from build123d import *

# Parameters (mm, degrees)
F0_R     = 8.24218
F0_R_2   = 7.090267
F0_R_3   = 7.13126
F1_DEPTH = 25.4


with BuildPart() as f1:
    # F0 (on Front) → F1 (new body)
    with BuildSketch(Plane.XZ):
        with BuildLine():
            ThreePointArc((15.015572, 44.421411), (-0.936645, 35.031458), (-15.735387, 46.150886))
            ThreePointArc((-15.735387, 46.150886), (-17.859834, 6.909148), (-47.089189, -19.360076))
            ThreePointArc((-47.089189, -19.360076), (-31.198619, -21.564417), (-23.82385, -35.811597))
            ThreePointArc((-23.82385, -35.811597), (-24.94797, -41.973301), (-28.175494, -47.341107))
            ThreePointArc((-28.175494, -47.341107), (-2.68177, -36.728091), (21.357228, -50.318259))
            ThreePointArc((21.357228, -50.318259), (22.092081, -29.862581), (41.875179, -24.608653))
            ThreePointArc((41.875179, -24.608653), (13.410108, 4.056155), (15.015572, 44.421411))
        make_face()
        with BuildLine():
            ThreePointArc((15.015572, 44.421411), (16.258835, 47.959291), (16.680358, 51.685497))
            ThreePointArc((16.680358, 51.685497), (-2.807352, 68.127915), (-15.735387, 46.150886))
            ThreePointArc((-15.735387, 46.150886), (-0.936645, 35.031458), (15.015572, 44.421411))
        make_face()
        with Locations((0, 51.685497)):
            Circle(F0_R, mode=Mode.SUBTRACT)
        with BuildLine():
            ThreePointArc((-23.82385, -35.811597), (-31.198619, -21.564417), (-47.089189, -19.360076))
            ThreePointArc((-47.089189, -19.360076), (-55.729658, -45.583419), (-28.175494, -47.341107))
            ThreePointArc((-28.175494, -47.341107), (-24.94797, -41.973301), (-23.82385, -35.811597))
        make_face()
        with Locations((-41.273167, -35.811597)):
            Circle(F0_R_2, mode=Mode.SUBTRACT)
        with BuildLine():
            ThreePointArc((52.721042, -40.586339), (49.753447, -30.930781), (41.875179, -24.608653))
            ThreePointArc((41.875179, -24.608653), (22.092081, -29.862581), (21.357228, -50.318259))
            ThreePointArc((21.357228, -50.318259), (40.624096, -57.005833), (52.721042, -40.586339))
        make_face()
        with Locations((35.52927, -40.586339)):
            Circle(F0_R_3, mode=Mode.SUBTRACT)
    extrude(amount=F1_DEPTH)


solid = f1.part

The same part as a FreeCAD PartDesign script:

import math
import FreeCAD as App
import Part
import Sketcher
Q = App.Units.Quantity

doc = App.newDocument("Part")
body = doc.addObject("PartDesign::Body", "Body")

# Sketch on XZ plane
sketch1 = doc.addObject("Sketcher::SketchObject", "Sketch")
body.addObject(sketch1)
sketch1.AttachmentSupport = (doc.XZ_Plane, [""])
sketch1.MapMode = "FlatFace"
sketch1.addGeometry([
    Part.ArcOfCircle(Part.Circle(App.Vector(-64, 29, 0), App.Vector(0, 0, 1), 51), math.radians(-71), math.radians(19)),  # 0
    Part.ArcOfCircle(Part.Circle(App.Vector(-41, -36, 0), App.Vector(0, 0, 1), 17), math.radians(109), math.radians(319)),  # 1
    Part.ArcOfCircle(Part.Circle(App.Vector(-5, -68, 0), App.Vector(0, 0, 1), 31), math.radians(34), math.radians(139)),  # 2
    Part.ArcOfCircle(Part.Circle(App.Vector(36, -41, 0), App.Vector(0, 0, 1), 17), math.radians(-146), math.radians(0)),  # 3
    Part.ArcOfCircle(Part.Circle(App.Vector(36, -41, 0), App.Vector(0, 0, 1), 17), math.radians(0), math.radians(68)),  # 4
    Part.ArcOfCircle(Part.Circle(App.Vector(61, 22, 0), App.Vector(0, 0, 1), 51), math.radians(154), math.radians(248)),  # 5
    Part.ArcOfCircle(Part.Circle(App.Vector(0, 52, 0), App.Vector(0, 0, 1), 17), math.radians(-26), math.radians(0)),  # 6
    Part.ArcOfCircle(Part.Circle(App.Vector(0, 52, 0), App.Vector(0, 0, 1), 17), math.radians(0), math.radians(199)),  # 7
    Part.Circle(App.Vector(-41, -36, 0), App.Vector(0, 0, 1), 7),  # 8
    Part.Circle(App.Vector(36, -41, 0), App.Vector(0, 0, 1), 7),  # 9
    Part.Circle(App.Vector(0, 52, 0), App.Vector(0, 0, 1), 8),  # 10
], False)
sketch1.addConstraint([
    Sketcher.Constraint("Tangent", 0, 1, 1, 1),
    Sketcher.Constraint("Tangent", 1, 2, 2, 2),
    Sketcher.Constraint("Tangent", 2, 1, 3, 1),
    Sketcher.Constraint("Tangent", 3, 2, 4, 1),
    Sketcher.Constraint("Tangent", 4, 2, 5, 2),
    Sketcher.Constraint("Tangent", 5, 1, 6, 1),
    Sketcher.Constraint("Tangent", 6, 2, 7, 1),
    Sketcher.Constraint("Tangent", 7, 2, 0, 2),
    Sketcher.Constraint("Coincident", 8, 3, 1, 3),
    Sketcher.Constraint("Coincident", 9, 3, 3, 3),
    Sketcher.Constraint("Coincident", 10, 3, 7, 3),
    Sketcher.Constraint("Equal", 3, 4),
    Sketcher.Constraint("PointOnObject", 7, 3, -2),
    Sketcher.Constraint("Horizontal", 9, 3, 3, 2),
    Sketcher.Constraint("Horizontal", 10, 3, 6, 2),
    Sketcher.Constraint("Radius", 0, 51.396399),
    Sketcher.Constraint("Diameter", 9, 14.26252),
    Sketcher.Constraint("Diameter", 10, 16.48436),
    Sketcher.Constraint("Radius", 6, 16.68038),
    Sketcher.Constraint("Diameter", 8, 14.180534),
    Sketcher.Constraint("Radius", 1, 17.449316),
    Sketcher.Constraint("Radius", 2, 31.450093),
    Sketcher.Constraint("Radius", 3, 17.191772),
    Sketcher.Constraint("Radius", 5, 50.576393),
    Sketcher.Constraint("Radius", 7, 16.680358),
    Sketcher.Constraint("DistanceY", -1, 1, 6, 3, 51.685502),
    Sketcher.Constraint("DistanceX", 6, 3, 5, 3, 60.5442),
    Sketcher.Constraint("DistanceY", 1, 3, 6, 3, 87.497098),
    Sketcher.Constraint("DistanceY", -1, 1, 0, 3, 29.097349),
    Sketcher.Constraint("DistanceY", 2, 3, -1, 1, 68.121529),
])
pad1 = doc.addObject("PartDesign::Pad", "Pad")
body.addObject(pad1)
pad1.Profile = sketch1
pad1.Length = Q("1 in")

doc.recompute()
